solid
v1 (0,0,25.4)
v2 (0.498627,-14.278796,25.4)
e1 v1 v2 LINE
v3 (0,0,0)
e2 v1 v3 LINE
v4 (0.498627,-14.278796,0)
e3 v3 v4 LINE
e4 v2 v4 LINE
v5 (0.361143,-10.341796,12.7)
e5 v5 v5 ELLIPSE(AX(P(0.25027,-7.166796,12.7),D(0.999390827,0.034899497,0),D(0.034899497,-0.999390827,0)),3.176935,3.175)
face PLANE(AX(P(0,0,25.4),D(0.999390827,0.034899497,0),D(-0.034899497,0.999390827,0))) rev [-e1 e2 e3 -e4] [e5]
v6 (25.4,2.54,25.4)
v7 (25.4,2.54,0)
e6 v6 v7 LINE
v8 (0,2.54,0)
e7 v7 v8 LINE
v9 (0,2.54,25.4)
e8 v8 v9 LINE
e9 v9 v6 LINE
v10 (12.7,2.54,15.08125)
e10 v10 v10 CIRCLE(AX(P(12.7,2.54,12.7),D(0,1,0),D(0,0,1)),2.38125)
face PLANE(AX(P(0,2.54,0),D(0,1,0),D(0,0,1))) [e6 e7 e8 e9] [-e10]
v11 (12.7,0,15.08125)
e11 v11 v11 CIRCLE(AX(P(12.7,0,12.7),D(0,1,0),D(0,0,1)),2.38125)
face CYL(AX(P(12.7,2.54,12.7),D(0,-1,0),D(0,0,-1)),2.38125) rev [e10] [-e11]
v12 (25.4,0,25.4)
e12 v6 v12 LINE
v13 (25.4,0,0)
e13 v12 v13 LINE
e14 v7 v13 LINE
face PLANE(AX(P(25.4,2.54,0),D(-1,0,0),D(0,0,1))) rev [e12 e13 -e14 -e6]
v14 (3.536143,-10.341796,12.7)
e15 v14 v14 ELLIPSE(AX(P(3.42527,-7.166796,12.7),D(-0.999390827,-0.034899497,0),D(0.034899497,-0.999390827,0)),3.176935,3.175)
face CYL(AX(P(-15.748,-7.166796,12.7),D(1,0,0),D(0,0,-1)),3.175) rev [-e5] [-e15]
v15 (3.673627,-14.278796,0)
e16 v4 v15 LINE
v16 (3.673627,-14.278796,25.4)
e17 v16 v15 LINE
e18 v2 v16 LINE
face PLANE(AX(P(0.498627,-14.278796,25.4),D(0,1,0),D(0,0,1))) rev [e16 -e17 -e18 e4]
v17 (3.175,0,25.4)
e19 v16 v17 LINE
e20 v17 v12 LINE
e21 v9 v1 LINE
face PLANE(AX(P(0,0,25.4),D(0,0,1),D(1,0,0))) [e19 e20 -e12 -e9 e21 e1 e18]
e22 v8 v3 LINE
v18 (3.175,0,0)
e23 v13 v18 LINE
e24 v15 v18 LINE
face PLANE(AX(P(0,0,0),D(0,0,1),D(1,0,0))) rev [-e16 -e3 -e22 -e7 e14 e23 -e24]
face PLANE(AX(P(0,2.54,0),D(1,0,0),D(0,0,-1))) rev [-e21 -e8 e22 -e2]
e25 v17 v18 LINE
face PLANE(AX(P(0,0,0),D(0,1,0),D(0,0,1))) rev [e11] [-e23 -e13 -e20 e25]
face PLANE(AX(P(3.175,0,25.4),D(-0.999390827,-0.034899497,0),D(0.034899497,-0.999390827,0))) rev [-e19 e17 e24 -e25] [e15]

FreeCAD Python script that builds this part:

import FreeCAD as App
import Part
import Sketcher
Q = App.Units.Quantity

doc = App.newDocument("Part")
body = doc.addObject("PartDesign::Body", "Body")

sketch1 = body.newObject("Sketcher::SketchObject", "Sketch")
sketch1.AttachmentSupport = (doc.getObject("XY_Plane"), [""])
sketch1.MapMode = "FlatFace"
sketch1.addGeometry([
    Part.LineSegment(App.Vector(3.2, 0, 0), App.Vector(0, 0, 0)),
    Part.LineSegment(App.Vector(0, 0, 0), App.Vector(0.5, -14.3, 0)),
    Part.LineSegment(App.Vector(0.5, -14.3, 0), App.Vector(3.7, -14.3, 0)),
    Part.LineSegment(App.Vector(3.7, -14.3, 0), App.Vector(3.2, 0, 0)),
], False)
sketch1.addConstraint([
    Sketcher.Constraint("Coincident", 0, 2, 1, 1),
    Sketcher.Constraint("Coincident", 1, 2, 2, 1),
    Sketcher.Constraint("Coincident", 2, 2, 3, 1),
    Sketcher.Constraint("Coincident", 3, 2, 0, 1),
    Sketcher.Constraint("Horizontal", 0),
    Sketcher.Constraint("Horizontal", 2),
    Sketcher.Constraint("Coincident", 0, 2, -1, 1),
    Sketcher.Constraint("Parallel", 1, 3),
    Sketcher.Constraint("Angle", 1, Q("-88 deg")),
    Sketcher.Constraint("DistanceX", 0, 2, 0, 1, Q("0.125 in")),
    Sketcher.Constraint("Distance", 1, Q("0.5625 in")),
])
pad1 = body.newObject("PartDesign::Pad", "Pad")
pad1.Profile = sketch1
pad1.Length = Q("1 in")

sketch2 = body.newObject("Sketcher::SketchObject", "Sketch001")
sketch2.AttachmentSupport = (doc.getObject("XZ_Plane"), [""])
sketch2.MapMode = "FlatFace"
sketch2.addGeometry([
    Part.LineSegment(App.Vector(0, 0, 0), App.Vector(0, 25.4, 0)),
    Part.LineSegment(App.Vector(0, 25.4, 0), App.Vector(25.4, 25.4, 0)),
    Part.LineSegment(App.Vector(25.4, 25.4, 0), App.Vector(25.4, 0, 0)),
    Part.LineSegment(App.Vector(25.4, 0, 0), App.Vector(0, 0, 0)),
    Part.Circle(App.Vector(12.7, 12.7, 0), App.Vector(0, 0, 1), 2.4),
], False)
sketch2.addConstraint([
    Sketcher.Constraint("Coincident", 0, 2, 1, 1),
    Sketcher.Constraint("Coincident", 1, 2, 2, 1),
    Sketcher.Constraint("Coincident", 2, 2, 3, 1),
    Sketcher.Constraint("Coincident", 3, 2, 0, 1),
    Sketcher.Constraint("Vertical", 0),
    Sketcher.Constraint("Horizontal", 1),
    Sketcher.Constraint("Vertical", 2),
    Sketcher.Constraint("Horizontal", 3),
    Sketcher.Constraint("Coincident", 3, 2, -1, 1),
    Sketcher.Constraint("Equal", 3, 0),
    Sketcher.Constraint("DistanceX", 1, 1, 1, 2, Q("1 in")),
    Sketcher.Constraint("Diameter", 4, Q("0.1875 in")),
    Sketcher.Constraint("DistanceX", -1, 1, 4, 3, Q("0.5 in")),
    Sketcher.Constraint("DistanceY", -1, 1, 4, 3, Q("0.5 in")),
])
pad2 = body.newObject("PartDesign::Pad", "Pad001")
pad2.Profile = sketch2
pad2.Length = Q("0.1 in")
pad2.Reversed = True

sketch3 = body.newObject("Sketcher::SketchObject", "Sketch002")
sketch3.AttachmentSupport = (doc.getObject("YZ_Plane"), [""])
sketch3.MapMode = "FlatFace"
sketch3.AttachmentOffset = App.Placement(App.Vector(0, 0, 1 * 25.4), App.Rotation())
sketch3.addGeometry(Part.Circle(App.Vector(-7.2, 12.7, 0), App.Vector(0, 0, 1), 3.2), False)
sketch3.addConstraint([
    Sketcher.Constraint("Diameter", 0, Q("0.25 in")),
    Sketcher.Constraint("DistanceY", -1, 1, 0, 3, Q("0.5 in")),
    Sketcher.Constraint("DistanceX", 0, 3, -1, 1, Q("7.166796 mm")),
])
pocket1 = body.newObject("PartDesign::Pocket", "Pocket")
pocket1.Profile = sketch3
pocket1.Length = Q("1.62 in")

doc.recompute()
